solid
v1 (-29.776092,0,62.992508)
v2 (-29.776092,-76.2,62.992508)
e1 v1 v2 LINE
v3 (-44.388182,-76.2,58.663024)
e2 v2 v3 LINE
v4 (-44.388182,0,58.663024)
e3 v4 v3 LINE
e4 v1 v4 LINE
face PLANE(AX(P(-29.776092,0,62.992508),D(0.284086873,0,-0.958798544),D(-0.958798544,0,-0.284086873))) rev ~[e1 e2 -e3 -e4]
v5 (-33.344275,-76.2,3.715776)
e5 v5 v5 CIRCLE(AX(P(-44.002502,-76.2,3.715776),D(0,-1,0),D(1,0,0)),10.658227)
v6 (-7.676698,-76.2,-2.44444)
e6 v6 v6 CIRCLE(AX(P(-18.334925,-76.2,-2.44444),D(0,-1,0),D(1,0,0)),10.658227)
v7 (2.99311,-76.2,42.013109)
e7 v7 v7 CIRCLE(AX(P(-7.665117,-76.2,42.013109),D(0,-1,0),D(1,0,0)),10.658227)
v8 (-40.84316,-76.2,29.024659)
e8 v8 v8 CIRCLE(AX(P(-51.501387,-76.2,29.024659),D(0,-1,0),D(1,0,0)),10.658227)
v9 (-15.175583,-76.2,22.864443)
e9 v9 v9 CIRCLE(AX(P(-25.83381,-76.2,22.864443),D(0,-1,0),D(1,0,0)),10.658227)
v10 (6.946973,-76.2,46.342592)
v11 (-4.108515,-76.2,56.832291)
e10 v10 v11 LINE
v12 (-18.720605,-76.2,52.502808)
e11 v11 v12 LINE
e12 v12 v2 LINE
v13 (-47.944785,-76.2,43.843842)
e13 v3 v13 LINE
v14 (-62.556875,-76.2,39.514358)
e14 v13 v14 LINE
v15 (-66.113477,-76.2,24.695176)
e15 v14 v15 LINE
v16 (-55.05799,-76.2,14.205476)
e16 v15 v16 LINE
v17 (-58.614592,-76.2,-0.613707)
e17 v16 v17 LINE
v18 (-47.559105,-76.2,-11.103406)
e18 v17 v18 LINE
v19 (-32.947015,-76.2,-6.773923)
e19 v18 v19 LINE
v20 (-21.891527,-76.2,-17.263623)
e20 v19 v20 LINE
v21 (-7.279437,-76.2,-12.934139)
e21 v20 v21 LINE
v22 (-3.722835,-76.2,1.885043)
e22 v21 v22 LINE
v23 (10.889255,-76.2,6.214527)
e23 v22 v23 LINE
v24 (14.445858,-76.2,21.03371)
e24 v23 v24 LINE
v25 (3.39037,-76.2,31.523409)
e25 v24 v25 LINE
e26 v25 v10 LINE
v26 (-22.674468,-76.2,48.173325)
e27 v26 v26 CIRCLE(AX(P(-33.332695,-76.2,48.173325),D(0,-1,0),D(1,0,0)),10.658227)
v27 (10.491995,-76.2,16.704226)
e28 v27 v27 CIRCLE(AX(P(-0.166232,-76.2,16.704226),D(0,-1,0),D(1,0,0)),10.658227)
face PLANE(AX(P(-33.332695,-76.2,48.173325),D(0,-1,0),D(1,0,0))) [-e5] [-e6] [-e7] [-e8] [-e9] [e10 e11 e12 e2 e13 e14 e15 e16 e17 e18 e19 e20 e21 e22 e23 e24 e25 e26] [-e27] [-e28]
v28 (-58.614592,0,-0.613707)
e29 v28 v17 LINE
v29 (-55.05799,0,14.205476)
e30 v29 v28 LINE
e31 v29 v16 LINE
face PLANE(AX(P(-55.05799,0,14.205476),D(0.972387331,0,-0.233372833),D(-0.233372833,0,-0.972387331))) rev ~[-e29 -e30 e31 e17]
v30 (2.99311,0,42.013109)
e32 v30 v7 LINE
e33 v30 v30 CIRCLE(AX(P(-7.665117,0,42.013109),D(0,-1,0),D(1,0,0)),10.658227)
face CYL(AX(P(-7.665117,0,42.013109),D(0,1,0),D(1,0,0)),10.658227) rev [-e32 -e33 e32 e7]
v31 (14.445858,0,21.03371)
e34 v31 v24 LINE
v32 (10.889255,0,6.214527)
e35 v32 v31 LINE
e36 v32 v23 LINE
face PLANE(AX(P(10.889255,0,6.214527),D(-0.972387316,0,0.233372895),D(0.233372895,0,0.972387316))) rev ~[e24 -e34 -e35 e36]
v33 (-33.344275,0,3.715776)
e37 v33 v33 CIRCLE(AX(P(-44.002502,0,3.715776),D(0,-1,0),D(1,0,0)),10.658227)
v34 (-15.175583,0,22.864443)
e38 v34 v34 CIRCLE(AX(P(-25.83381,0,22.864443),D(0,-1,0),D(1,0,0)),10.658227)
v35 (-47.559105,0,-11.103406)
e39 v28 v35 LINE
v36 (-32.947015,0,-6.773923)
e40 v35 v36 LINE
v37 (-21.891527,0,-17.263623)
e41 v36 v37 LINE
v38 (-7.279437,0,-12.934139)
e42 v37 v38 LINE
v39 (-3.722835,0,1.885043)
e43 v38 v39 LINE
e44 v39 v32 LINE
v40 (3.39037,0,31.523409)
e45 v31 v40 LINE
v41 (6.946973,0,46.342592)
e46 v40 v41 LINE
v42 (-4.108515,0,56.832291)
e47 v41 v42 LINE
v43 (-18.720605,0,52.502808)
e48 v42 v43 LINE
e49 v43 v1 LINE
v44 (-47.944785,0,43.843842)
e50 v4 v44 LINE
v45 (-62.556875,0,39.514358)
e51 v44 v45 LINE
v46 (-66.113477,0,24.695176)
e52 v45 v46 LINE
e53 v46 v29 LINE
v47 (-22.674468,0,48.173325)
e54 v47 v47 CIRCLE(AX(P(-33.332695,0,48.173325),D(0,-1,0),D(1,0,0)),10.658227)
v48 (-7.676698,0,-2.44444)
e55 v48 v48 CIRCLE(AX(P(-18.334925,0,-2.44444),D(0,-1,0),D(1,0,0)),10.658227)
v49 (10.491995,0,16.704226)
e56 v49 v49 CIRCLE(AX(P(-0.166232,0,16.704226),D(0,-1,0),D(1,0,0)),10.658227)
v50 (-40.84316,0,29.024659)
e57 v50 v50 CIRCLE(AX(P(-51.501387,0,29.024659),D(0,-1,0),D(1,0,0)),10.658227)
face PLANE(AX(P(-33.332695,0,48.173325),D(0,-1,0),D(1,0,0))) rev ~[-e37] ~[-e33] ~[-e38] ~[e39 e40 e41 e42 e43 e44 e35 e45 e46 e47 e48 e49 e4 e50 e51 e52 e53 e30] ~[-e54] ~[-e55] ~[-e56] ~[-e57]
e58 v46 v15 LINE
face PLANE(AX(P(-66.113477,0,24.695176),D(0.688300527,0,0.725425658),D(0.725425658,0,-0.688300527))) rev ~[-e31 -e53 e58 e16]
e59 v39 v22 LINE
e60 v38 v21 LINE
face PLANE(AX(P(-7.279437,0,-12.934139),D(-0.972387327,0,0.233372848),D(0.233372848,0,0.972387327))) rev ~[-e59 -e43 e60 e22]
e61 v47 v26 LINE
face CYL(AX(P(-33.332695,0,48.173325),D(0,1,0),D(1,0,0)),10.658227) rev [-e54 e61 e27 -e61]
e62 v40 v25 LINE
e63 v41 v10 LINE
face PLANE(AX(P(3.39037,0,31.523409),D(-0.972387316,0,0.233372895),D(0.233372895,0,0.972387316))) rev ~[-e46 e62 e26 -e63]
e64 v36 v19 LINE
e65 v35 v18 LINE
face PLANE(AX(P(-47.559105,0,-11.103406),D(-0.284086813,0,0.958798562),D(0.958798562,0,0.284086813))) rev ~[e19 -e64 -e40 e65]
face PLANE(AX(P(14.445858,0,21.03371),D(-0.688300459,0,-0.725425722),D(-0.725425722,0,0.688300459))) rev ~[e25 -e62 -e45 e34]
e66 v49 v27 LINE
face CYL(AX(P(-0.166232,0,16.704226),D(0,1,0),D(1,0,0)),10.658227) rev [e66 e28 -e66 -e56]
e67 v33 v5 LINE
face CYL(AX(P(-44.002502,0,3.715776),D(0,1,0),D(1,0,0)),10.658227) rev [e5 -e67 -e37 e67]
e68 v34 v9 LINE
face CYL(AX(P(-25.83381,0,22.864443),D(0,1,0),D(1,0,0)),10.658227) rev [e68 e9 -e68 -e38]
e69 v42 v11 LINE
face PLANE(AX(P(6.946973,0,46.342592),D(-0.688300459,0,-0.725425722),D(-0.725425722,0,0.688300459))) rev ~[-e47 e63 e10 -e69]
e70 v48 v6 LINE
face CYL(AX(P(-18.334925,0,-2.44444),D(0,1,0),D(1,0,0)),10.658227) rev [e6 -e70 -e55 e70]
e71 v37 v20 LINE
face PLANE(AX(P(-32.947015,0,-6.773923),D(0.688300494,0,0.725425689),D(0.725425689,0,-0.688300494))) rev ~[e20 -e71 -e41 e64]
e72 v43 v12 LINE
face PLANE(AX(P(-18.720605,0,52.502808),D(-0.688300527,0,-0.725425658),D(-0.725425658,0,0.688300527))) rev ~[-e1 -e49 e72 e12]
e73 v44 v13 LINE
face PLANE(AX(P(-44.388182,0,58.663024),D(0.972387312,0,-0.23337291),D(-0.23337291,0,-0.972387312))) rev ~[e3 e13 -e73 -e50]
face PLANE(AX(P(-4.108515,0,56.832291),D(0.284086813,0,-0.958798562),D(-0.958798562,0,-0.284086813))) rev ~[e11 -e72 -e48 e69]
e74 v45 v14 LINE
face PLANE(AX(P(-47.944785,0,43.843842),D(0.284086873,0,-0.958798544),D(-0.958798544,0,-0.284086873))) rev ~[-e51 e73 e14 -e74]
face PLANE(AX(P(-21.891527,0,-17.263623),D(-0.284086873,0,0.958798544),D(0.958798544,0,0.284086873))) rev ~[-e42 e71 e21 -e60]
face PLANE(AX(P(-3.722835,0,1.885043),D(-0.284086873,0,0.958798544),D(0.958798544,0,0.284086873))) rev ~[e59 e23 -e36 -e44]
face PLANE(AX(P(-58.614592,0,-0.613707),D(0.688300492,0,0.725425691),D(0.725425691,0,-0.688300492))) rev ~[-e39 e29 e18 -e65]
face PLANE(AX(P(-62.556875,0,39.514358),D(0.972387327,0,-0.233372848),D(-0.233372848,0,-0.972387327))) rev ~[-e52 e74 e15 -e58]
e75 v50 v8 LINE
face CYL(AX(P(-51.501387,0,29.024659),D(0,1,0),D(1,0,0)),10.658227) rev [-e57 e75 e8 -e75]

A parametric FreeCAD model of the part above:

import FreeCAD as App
import Part
import Sketcher
Q = App.Units.Quantity

doc = App.newDocument("Part")
body = doc.addObject("PartDesign::Body", "Body")

# Sketch on XZ plane
sketch1 = body.newObject("Sketcher::SketchObject", "Sketch")
sketch1.AttachmentSupport = (doc.getObject("XZ_Plane"), [""])
sketch1.MapMode = "FlatFace"
sketch1.addGeometry(Part.LineSegment(App.Vector(-44.388182, 58.663024, 0), App.Vector(-47.944785, 43.843842, 0)), False)
sketch1.addGeometry(Part.LineSegment(App.Vector(-47.944785, 43.843842, 0), App.Vector(-62.556875, 39.514358, 0)), False)
sketch1.addGeometry(Part.LineSegment(App.Vector(-62.556875, 39.514358, 0), App.Vector(-66.113477, 24.695176, 0)), False)
sketch1.addGeometry(Part.LineSegment(App.Vector(-66.113477, 24.695176, 0), App.Vector(-55.05799, 14.205476, 0)), False)
sketch1.addGeometry(Part.LineSegment(App.Vector(-55.05799, 14.205476, 0), App.Vector(-58.614592, -0.613707, 0)), False)
sketch1.addGeometry(Part.LineSegment(App.Vector(-58.614592, -0.613707, 0), App.Vector(-47.559105, -11.103406, 0)), False)
sketch1.addGeometry(Part.LineSegment(App.Vector(-47.559105, -11.103406, 0), App.Vector(-32.947015, -6.773923, 0)), False)
sketch1.addGeometry(Part.LineSegment(App.Vector(-32.947015, -6.773923, 0), App.Vector(-21.891527, -17.263623, 0)), False)
sketch1.addGeometry(Part.LineSegment(App.Vector(-21.891527, -17.263623, 0), App.Vector(-7.279437, -12.934139, 0)), False)
sketch1.addGeometry(Part.LineSegment(App.Vector(-7.279437, -12.934139, 0), App.Vector(-3.722835, 1.885043, 0)), False)
sketch1.addGeometry(Part.LineSegment(App.Vector(-3.722835, 1.885043, 0), App.Vector(10.889255, 6.214527, 0)), False)
sketch1.addGeometry(Part.LineSegment(App.Vector(10.889255, 6.214527, 0), App.Vector(14.445858, 21.03371, 0)), False)
sketch1.addGeometry(Part.LineSegment(App.Vector(14.445858, 21.03371, 0), App.Vector(3.39037, 31.523409, 0)), False)
sketch1.addGeometry(Part.LineSegment(App.Vector(3.39037, 31.523409, 0), App.Vector(6.946973, 46.342592, 0)), False)
sketch1.addGeometry(Part.LineSegment(App.Vector(6.946973, 46.342592, 0), App.Vector(-4.108515, 56.832291, 0)), False)
sketch1.addGeometry(Part.LineSegment(App.Vector(-4.108515, 56.832291, 0), App.Vector(-18.720605, 52.502808, 0)), False)
sketch1.addGeometry(Part.LineSegment(App.Vector(-18.720605, 52.502808, 0), App.Vector(-29.776092, 62.992508, 0)), False)
sketch1.addGeometry(Part.LineSegment(App.Vector(-29.776092, 62.992508, 0), App.Vector(-44.388182, 58.663024, 0)), False)
sketch1.addGeometry(Part.Circle(App.Vector(-44.002502, 3.715776, 0), App.Vector(0, 0, 1), 10.658227), False)
sketch1.addGeometry(Part.Circle(App.Vector(-18.334925, -2.44444, 0), App.Vector(0, 0, 1), 10.658227), False)
sketch1.addGeometry(Part.Circle(App.Vector(-0.166232, 16.704226, 0), App.Vector(0, 0, 1), 10.658227), False)
sketch1.addGeometry(Part.Circle(App.Vector(-51.501387, 29.024659, 0), App.Vector(0, 0, 1), 10.658227), False)
sketch1.addGeometry(Part.Circle(App.Vector(-25.83381, 22.864443, 0), App.Vector(0, 0, 1), 10.658227), False)
sketch1.addGeometry(Part.Circle(App.Vector(-33.332695, 48.173325, 0), App.Vector(0, 0, 1), 10.658227), False)
sketch1.addGeometry(Part.Circle(App.Vector(-7.665117, 42.013109, 0), App.Vector(0, 0, 1), 10.658227), False)
sketch1.addConstraint(Sketcher.Constraint("Coincident", 0, 2, 1, 1))
sketch1.addConstraint(Sketcher.Constraint("Coincident", 1, 2, 2, 1))
sketch1.addConstraint(Sketcher.Constraint("Coincident", 2, 2, 3, 1))
sketch1.addConstraint(Sketcher.Constraint("Coincident", 3, 2, 4, 1))
sketch1.addConstraint(Sketcher.Constraint("Coincident", 4, 2, 5, 1))
sketch1.addConstraint(Sketcher.Constraint("Coincident", 5, 2, 6, 1))
sketch1.addConstraint(Sketcher.Constraint("Coincident", 6, 2, 7, 1))
sketch1.addConstraint(Sketcher.Constraint("Coincident", 7, 2, 8, 1))
sketch1.addConstraint(Sketcher.Constraint("Coincident", 8, 2, 9, 1))
sketch1.addConstraint(Sketcher.Constraint("Coincident", 9, 2, 10, 1))
sketch1.addConstraint(Sketcher.Constraint("Coincident", 10, 2, 11, 1))
sketch1.addConstraint(Sketcher.Constraint("Coincident", 11, 2, 12, 1))
sketch1.addConstraint(Sketcher.Constraint("Coincident", 12, 2, 13, 1))
sketch1.addConstraint(Sketcher.Constraint("Coincident", 13, 2, 14, 1))
sketch1.addConstraint(Sketcher.Constraint("Coincident", 14, 2, 15, 1))
sketch1.addConstraint(Sketcher.Constraint("Coincident", 15, 2, 16, 1))
sketch1.addConstraint(Sketcher.Constraint("Coincident", 16, 2, 17, 1))
sketch1.addConstraint(Sketcher.Constraint("Coincident", 17, 2, 0, 1))
sketch1.addConstraint(Sketcher.Constraint("Equal", 18, 19))
sketch1.addConstraint(Sketcher.Constraint("Equal", 19, 20))
sketch1.addConstraint(Sketcher.Constraint("Equal", 20, 21))
sketch1.addConstraint(Sketcher.Constraint("Equal", 21, 22))
sketch1.addConstraint(Sketcher.Constraint("Equal", 22, 23))
sketch1.addConstraint(Sketcher.Constraint("Equal", 23, 24))
sketch1.addConstraint(Sketcher.Constraint("Parallel", 0, 2))
sketch1.addConstraint(Sketcher.Constraint("Parallel", 2, 4))
sketch1.addConstraint(Sketcher.Constraint("Parallel", 3, 5))
sketch1.addConstraint(Sketcher.Constraint("Parallel", 1, 6))
sketch1.addConstraint(Sketcher.Constraint("Parallel", 5, 7))
sketch1.addConstraint(Sketcher.Constraint("Parallel", 6, 8))
sketch1.addConstraint(Sketcher.Constraint("Parallel", 4, 9))
sketch1.addConstraint(Sketcher.Constraint("Parallel", 8, 10))
sketch1.addConstraint(Sketcher.Constraint("Parallel", 9, 11))
sketch1.addConstraint(Sketcher.Constraint("Parallel", 7, 12))
sketch1.addConstraint(Sketcher.Constraint("Parallel", 11, 13))
sketch1.addConstraint(Sketcher.Constraint("Parallel", 12, 14))
sketch1.addConstraint(Sketcher.Constraint("Parallel", 10, 15))
sketch1.addConstraint(Sketcher.Constraint("Parallel", 14, 16))
sketch1.addConstraint(Sketcher.Constraint("Parallel", 15, 17))
sketch1.addConstraint(Sketcher.Constraint("Equal", 0, 1))
sketch1.addConstraint(Sketcher.Constraint("Equal", 1, 2))
sketch1.addConstraint(Sketcher.Constraint("Equal", 2, 3))
sketch1.addConstraint(Sketcher.Constraint("Equal", 3, 4))
sketch1.addConstraint(Sketcher.Constraint("Equal", 4, 5))
sketch1.addConstraint(Sketcher.Constraint("Equal", 5, 6))
sketch1.addConstraint(Sketcher.Constraint("Equal", 6, 7))
sketch1.addConstraint(Sketcher.Constraint("Equal", 7, 8))
sketch1.addConstraint(Sketcher.Constraint("Equal", 8, 9))
sketch1.addConstraint(Sketcher.Constraint("Equal", 9, 10))
sketch1.addConstraint(Sketcher.Constraint("Equal", 10, 11))
sketch1.addConstraint(Sketcher.Constraint("Equal", 11, 12))
sketch1.addConstraint(Sketcher.Constraint("Equal", 12, 13))
sketch1.addConstraint(Sketcher.Constraint("Equal", 13, 14))
sketch1.addConstraint(Sketcher.Constraint("Equal", 14, 15))
sketch1.addConstraint(Sketcher.Constraint("Distance", 0, Q("0.6 in")))
sketch1.addConstraint(Sketcher.Constraint("Diameter", 18, 21.316454))
sketch1.addConstraint(Sketcher.Constraint("DistanceY", 19, 3, 21, 3, 31.469099))
sketch1.addConstraint(Sketcher.Constraint("DistanceY", 20, 3, 23, 3, 31.469099))
sketch1.addConstraint(Sketcher.Constraint("DistanceX", 21, 3, 0, 2, 3.556602))
sketch1.addConstraint(Sketcher.Constraint("DistanceY", 22, 3, 0, 2, 20.979399))
sketch1.addConstraint(Sketcher.Constraint("DistanceY", 21, 3, 1, 2, 10.489699))
sketch1.addConstraint(Sketcher.Constraint("DistanceY", 18, 3, 2, 2, 20.9794))
sketch1.addConstraint(Sketcher.Constraint("DistanceY", 3, 2, 2, 2, 10.4897))
sketch1.addConstraint(Sketcher.Constraint("DistanceY", 6, 2, 18, 3, 10.489699))
sketch1.addConstraint(Sketcher.Constraint("DistanceX", 8, 2, 9, 2, 3.556602))
sketch1.addConstraint(Sketcher.Constraint("DistanceY", 10, 2, 20, 3, 10.489699))
sketch1.addConstraint(Sketcher.Constraint("DistanceY", 11, 2, 24, 3, 20.979399))
sketch1.addConstraint(Sketcher.Constraint("DistanceX", 20, 3, 12, 2, 3.556602))
sketch1.addConstraint(Sketcher.Constraint("DistanceY", 19, 3, -1, 1, 2.44444))
sketch1.addConstraint(Sketcher.Constraint("DistanceX", 22, 3, -1, 1, 25.83381))
sketch1.addConstraint(Sketcher.Constraint("DistanceX", 3, 2, -1, 1, 55.05799))
sketch1.addConstraint(Sketcher.Constraint("DistanceX", 18, 3, 20, 3, 43.83627))
sketch1.addConstraint(Sketcher.Constraint("DistanceX", 21, 3, 23, 3, 18.168692))
sketch1.addConstraint(Sketcher.Constraint("DistanceX", 23, 3, 19, 3, 14.99777))
sketch1.addConstraint(Sketcher.Constraint("DistanceX", 21, 3, 24, 3, 43.83627))
pad1 = body.newObject("PartDesign::Pad", "Pad")
pad1.Profile = sketch1
pad1.Length = Q("3 in")

doc.recompute()
